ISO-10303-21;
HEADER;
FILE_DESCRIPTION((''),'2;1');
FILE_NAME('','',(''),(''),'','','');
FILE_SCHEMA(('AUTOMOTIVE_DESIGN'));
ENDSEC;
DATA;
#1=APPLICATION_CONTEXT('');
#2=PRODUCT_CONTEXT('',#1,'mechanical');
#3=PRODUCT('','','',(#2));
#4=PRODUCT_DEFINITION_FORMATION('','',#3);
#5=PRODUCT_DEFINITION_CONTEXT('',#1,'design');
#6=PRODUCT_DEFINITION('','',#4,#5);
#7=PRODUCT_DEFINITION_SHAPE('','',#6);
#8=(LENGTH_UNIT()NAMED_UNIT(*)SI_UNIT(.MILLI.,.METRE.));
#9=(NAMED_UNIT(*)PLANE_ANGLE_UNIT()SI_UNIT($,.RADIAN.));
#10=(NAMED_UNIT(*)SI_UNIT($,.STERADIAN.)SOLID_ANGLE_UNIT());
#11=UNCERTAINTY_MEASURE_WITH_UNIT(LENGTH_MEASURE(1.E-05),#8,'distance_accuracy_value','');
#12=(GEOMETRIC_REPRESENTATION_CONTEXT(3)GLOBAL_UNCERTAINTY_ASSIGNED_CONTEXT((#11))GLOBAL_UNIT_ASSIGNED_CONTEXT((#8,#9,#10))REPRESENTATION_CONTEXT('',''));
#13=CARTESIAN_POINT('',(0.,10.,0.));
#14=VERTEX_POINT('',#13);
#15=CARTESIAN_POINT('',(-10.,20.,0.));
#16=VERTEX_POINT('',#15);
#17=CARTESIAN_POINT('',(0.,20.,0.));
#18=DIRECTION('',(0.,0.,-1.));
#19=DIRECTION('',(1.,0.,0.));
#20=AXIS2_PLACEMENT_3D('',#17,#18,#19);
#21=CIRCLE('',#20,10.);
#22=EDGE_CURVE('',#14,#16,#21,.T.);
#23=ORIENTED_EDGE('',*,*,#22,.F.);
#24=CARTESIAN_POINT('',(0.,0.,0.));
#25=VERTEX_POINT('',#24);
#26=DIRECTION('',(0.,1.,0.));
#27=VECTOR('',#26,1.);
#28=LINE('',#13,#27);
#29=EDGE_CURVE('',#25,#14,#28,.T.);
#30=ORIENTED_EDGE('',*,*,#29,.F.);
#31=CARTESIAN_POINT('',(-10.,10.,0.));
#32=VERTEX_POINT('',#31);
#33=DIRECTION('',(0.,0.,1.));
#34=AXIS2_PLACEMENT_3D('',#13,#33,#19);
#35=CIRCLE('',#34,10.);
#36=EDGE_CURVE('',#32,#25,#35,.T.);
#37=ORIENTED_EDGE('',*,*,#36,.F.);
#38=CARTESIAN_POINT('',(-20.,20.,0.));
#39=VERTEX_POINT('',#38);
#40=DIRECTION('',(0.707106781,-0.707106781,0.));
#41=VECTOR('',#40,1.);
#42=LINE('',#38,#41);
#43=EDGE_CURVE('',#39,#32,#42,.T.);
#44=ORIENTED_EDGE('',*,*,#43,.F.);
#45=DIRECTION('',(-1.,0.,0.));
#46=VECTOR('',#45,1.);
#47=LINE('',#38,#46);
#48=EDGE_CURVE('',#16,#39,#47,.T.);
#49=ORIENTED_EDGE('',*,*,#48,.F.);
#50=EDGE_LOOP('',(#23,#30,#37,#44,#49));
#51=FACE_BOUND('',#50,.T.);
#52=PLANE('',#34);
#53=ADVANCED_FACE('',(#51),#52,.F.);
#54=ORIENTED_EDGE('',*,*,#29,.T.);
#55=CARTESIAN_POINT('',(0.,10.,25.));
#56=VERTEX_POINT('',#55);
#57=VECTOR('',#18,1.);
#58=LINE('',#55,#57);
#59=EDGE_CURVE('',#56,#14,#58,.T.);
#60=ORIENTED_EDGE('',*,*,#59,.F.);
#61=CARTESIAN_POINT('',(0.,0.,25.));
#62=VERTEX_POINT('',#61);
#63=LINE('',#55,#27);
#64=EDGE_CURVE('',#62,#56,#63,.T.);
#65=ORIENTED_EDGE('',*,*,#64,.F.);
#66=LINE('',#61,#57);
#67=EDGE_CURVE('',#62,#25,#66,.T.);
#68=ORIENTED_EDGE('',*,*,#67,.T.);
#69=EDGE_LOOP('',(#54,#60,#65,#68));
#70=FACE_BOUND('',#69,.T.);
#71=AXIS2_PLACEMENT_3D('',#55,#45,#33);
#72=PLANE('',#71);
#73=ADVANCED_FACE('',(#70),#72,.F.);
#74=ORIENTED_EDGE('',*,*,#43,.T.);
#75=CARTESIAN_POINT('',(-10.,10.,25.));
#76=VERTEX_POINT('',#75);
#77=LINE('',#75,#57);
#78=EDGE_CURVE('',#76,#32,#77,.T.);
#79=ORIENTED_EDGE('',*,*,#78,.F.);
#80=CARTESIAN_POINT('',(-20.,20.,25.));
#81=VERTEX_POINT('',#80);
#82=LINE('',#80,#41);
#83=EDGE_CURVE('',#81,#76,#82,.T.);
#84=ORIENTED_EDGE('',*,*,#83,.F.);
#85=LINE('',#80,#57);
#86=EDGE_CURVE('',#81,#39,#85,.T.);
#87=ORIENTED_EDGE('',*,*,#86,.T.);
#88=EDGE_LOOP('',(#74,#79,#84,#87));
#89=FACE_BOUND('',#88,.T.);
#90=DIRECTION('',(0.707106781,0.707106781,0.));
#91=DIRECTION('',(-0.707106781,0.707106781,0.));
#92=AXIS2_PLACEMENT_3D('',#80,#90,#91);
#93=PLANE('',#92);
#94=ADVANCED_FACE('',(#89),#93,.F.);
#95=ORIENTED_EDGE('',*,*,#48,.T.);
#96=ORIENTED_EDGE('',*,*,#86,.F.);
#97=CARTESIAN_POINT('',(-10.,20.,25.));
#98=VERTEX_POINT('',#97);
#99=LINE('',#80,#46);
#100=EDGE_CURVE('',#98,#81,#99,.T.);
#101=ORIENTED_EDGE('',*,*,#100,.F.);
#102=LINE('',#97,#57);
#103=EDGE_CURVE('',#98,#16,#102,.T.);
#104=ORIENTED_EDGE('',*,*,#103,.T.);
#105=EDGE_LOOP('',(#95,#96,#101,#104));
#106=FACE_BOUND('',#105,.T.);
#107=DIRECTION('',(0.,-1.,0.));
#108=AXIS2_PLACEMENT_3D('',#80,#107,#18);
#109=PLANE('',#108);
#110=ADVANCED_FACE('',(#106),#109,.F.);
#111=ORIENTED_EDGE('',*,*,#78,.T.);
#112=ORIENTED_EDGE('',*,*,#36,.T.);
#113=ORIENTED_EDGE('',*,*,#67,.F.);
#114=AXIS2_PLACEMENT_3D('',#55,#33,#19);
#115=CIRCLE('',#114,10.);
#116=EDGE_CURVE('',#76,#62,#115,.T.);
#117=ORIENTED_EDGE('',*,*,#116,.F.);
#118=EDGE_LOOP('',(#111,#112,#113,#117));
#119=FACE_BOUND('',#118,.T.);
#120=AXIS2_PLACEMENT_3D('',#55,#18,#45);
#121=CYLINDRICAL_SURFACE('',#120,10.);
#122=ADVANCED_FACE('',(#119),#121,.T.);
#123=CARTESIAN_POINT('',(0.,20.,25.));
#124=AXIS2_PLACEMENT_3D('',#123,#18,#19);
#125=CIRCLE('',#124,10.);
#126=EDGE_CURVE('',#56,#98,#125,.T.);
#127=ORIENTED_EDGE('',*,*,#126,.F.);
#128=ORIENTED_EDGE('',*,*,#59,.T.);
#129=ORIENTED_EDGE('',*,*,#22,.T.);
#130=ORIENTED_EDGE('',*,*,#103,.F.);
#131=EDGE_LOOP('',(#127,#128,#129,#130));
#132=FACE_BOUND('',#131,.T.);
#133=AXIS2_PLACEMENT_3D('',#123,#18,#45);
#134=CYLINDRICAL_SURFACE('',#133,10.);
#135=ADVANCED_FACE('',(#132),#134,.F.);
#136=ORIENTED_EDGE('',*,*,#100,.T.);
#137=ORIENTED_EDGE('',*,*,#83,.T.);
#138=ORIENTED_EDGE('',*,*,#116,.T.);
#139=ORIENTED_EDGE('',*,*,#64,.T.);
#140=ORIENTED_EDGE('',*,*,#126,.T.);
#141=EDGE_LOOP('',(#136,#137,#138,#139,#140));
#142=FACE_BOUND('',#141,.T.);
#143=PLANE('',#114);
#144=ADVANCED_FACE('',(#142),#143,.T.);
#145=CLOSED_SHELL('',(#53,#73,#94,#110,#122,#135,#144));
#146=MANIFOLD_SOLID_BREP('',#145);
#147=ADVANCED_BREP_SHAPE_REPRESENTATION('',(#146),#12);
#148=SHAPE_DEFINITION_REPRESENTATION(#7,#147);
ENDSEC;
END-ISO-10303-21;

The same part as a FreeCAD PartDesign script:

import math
import FreeCAD as App
import Part
import Sketcher

V = App.Vector
Q = App.Units.Quantity

doc = App.newDocument("Part")
body = doc.addObject("PartDesign::Body", "Body")

sketch1 = doc.addObject("Sketcher::SketchObject", "Sketch")
body.addObject(sketch1)
sketch1.AttachmentSupport = (doc.XY_Plane, [""])
sketch1.MapMode = "FlatFace"
sketch1.addGeometry([
    Part.LineSegment(V(-10, 20, 0), V(-20, 20, 0)),
    Part.LineSegment(V(-20, 20, 0), V(-10, 10, 0)),
    Part.ArcOfCircle(Part.Circle(V(0, 10, 0), V(0, 0, 1), 10), math.radians(180), math.radians(270)),
    Part.LineSegment(V(0, 0, 0), V(0, 10, 0)),
    Part.ArcOfCircle(Part.Circle(V(0, 20, 0), V(0, 0, 1), 10), math.radians(180), math.radians(270)),
], False)
sketch1.addConstraint([
    Sketcher.Constraint("Coincident", 0, 2, 1, 1),
    Sketcher.Constraint("Coincident", 1, 2, 2, 1),
    Sketcher.Constraint("Coincident", 2, 2, 3, 1),
    Sketcher.Constraint("Coincident", 3, 2, 4, 2),
    Sketcher.Constraint("Coincident", 4, 1, 0, 1),
    Sketcher.Constraint("Horizontal", 0),
    Sketcher.Constraint("Vertical", 3),
    Sketcher.Constraint("Coincident", 2, 2, -1, 1),
    Sketcher.Constraint("Coincident", 3, 2, 2, 3),
    Sketcher.Constraint("Equal", 2, 4),
    Sketcher.Constraint("PointOnObject", 4, 3, -2),
    Sketcher.Constraint("Horizontal", 4, 3, 0, 2),
    Sketcher.Constraint("Horizontal", 2, 3, 1, 2),
    Sketcher.Constraint("Equal", 0, 3),
    Sketcher.Constraint("Radius", 2, Q("10 mm")),
])
pad1 = doc.addObject("PartDesign::Pad", "Pad")
body.addObject(pad1)
pad1.Profile = sketch1
pad1.Length = 25

doc.recompute()
